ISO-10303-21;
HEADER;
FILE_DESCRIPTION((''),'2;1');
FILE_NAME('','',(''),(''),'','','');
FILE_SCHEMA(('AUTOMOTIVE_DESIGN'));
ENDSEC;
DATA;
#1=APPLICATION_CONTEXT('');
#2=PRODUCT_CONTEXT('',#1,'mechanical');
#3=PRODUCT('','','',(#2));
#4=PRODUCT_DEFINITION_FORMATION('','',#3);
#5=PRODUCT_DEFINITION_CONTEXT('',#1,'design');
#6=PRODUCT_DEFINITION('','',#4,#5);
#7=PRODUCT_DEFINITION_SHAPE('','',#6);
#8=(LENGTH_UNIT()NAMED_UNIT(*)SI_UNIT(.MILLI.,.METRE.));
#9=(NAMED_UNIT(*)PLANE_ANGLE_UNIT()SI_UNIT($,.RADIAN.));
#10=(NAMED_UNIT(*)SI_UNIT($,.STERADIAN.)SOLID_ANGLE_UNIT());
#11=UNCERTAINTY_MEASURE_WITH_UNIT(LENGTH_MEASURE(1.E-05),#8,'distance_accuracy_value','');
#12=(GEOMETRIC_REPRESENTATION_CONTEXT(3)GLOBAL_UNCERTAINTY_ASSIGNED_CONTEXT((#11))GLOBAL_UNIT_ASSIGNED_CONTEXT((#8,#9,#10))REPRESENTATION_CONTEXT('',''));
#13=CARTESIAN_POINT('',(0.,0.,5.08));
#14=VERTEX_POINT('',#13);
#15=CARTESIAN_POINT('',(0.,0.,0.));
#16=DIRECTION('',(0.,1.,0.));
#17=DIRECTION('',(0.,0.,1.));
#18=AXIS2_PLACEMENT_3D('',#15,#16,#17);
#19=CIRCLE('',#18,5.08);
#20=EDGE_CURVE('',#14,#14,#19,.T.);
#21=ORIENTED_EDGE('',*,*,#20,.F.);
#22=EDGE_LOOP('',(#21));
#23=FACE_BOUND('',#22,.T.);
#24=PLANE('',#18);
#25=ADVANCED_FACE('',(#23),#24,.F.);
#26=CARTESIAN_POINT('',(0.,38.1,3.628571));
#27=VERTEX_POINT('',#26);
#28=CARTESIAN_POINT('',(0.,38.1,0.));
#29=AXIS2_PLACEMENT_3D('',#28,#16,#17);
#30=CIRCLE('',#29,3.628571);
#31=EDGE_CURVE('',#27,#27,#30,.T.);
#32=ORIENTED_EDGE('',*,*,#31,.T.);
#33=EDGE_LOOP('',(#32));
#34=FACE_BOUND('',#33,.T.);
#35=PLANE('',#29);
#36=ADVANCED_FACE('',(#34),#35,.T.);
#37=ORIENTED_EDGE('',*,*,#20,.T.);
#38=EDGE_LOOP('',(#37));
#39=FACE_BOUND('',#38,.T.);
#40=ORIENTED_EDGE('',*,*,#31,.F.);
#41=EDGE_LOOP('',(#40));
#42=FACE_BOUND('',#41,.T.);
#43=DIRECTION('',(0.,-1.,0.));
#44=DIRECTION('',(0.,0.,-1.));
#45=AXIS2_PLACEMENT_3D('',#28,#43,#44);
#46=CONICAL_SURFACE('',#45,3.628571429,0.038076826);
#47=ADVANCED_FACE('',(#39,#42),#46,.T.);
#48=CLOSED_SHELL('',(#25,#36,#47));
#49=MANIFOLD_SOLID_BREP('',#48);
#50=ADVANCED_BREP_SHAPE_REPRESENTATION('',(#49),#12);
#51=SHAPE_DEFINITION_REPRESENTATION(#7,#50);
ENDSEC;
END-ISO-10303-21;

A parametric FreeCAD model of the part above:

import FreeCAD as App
import Part
import Sketcher

V = App.Vector
Q = App.Units.Quantity

doc = App.newDocument("Part")
body = doc.addObject("PartDesign::Body", "Body")

sketch1 = body.newObject("Sketcher::SketchObject", "Sketch")
sketch1.AttachmentSupport = (doc.getObject("XZ_Plane"), [""])
sketch1.MapMode = "FlatFace"
sketch1.AttachmentOffset = App.Placement(V(0, 0, -1.5 * 25.4), App.Rotation())
sketch1.addGeometry(Part.Circle(V(0, 0, 0), V(0, 0, 1), 3.6), False)
sketch1.addConstraint([
    Sketcher.Constraint("Coincident", 0, 3, -1, 1),
    Sketcher.Constraint("Diameter", 0, Q("7.257143 mm")),
])

sketch2 = body.newObject("Sketcher::SketchObject", "Sketch001")
sketch2.AttachmentSupport = (doc.getObject("XZ_Plane"), [""])
sketch2.MapMode = "FlatFace"
sketch2.addGeometry(Part.Circle(V(0, 0, 0), V(0, 0, 1), 5), False)
sketch2.addConstraint([
    Sketcher.Constraint("Coincident", 0, 3, -1, 1),
    Sketcher.Constraint("Diameter", 0, Q("0.4 in")),
])

additiveloft = body.newObject("PartDesign::AdditiveLoft", "AdditiveLoft")
additiveloft.Profile = sketch1
additiveloft.Sections = [sketch2]

doc.recompute()
